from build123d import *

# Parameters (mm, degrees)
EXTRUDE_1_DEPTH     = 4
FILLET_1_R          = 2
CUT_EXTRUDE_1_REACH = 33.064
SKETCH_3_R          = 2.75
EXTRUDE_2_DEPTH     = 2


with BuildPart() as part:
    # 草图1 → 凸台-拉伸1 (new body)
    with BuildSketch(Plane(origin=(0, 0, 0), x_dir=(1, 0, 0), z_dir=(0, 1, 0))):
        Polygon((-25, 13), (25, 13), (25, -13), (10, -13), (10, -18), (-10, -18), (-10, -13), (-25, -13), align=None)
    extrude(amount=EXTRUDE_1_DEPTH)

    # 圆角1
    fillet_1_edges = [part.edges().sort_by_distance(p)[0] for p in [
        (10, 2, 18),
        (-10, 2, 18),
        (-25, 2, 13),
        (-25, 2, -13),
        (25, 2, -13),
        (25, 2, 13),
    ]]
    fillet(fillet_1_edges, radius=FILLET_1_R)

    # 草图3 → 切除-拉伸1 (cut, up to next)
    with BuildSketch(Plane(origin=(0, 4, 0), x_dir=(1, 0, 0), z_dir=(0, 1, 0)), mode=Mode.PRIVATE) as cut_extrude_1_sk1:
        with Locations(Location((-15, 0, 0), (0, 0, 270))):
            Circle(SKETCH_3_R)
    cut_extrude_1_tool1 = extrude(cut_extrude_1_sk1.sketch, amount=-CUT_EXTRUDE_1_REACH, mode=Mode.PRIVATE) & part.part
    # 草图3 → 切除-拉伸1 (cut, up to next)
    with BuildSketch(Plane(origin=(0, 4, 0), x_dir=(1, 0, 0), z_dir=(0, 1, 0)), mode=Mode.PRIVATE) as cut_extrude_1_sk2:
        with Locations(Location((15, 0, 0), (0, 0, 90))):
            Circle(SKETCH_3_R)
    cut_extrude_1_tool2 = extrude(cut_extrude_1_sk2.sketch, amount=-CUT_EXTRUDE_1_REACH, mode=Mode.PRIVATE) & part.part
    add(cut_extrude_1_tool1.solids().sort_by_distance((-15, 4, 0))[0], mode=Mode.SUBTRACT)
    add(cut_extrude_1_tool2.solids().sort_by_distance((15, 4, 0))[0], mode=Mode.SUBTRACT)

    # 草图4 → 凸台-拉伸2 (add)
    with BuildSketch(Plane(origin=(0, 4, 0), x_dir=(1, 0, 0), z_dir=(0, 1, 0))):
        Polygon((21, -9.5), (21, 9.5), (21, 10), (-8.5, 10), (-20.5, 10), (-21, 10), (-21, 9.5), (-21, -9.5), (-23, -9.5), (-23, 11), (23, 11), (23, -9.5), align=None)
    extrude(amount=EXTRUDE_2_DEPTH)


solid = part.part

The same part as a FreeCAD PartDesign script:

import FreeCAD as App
import Part
import Sketcher

V = App.Vector
Q = App.Units.Quantity


def edges_at(feature, points):
    """Names of the edges that pass closest to the given points."""
    edges = feature.Shape.Edges
    near = lambda p: min(range(len(edges)), key=lambda i: edges[i].distToShape(Part.Vertex(*p))[0])
    return sorted({f"Edge{near(p) + 1}" for p in points})

doc = App.newDocument("Part")
body = doc.addObject("PartDesign::Body", "Body")

# Sketch on XZ plane
sketch1 = body.newObject("Sketcher::SketchObject", "Sketch")
sketch1.AttachmentSupport = (doc.getObject("XZ_Plane"), [""])
sketch1.MapMode = "FlatFace"
sketch1.addGeometry([
    Part.LineSegment(V(25, -13, 0), V(-25, -13, 0)),  # 0
    Part.LineSegment(V(-25, -13, 0), V(-25, 13, 0)),  # 1
    Part.LineSegment(V(-25, 13, 0), V(-10, 13, 0)),  # 2
    Part.LineSegment(V(-10, 13, 0), V(-10, 18, 0)),  # 3
    Part.LineSegment(V(-10, 18, 0), V(10, 18, 0)),  # 4
    Part.LineSegment(V(10, 18, 0), V(10, 13, 0)),  # 5
    Part.LineSegment(V(10, 13, 0), V(25, 13, 0)),  # 6
    Part.LineSegment(V(25, 13, 0), V(25, -13, 0)),  # 7
], False)
sketch1.addConstraint([
    Sketcher.Constraint("Coincident", 0, 2, 1, 1),
    Sketcher.Constraint("Coincident", 1, 2, 2, 1),
    Sketcher.Constraint("Coincident", 2, 2, 3, 1),
    Sketcher.Constraint("Coincident", 3, 2, 4, 1),
    Sketcher.Constraint("Coincident", 4, 2, 5, 1),
    Sketcher.Constraint("Coincident", 5, 2, 6, 1),
    Sketcher.Constraint("Coincident", 6, 2, 7, 1),
    Sketcher.Constraint("Coincident", 7, 2, 0, 1),
    Sketcher.Constraint("Horizontal", 0),
    Sketcher.Constraint("Vertical", 1),
    Sketcher.Constraint("Horizontal", 2),
    Sketcher.Constraint("Vertical", 3),
    Sketcher.Constraint("Horizontal", 4),
    Sketcher.Constraint("Vertical", 5),
    Sketcher.Constraint("Horizontal", 6),
    Sketcher.Constraint("Vertical", 7),
    Sketcher.Constraint("Symmetric", 0, 2, 6, 2, -1, 1),
    Sketcher.Constraint("Symmetric", 2, 2, 5, 2, -2),
    Sketcher.Constraint("DistanceX", 0, 2, 0, 1, Q("50 mm")),
    Sketcher.Constraint("DistanceX", 2, 1, 2, 2, Q("15 mm")),
    Sketcher.Constraint("DistanceY", 1, 1, 1, 2, Q("26 mm")),
    Sketcher.Constraint("DistanceY", 3, 1, 3, 2, Q("5 mm")),
])
pad1 = body.newObject("PartDesign::Pad", "Pad")
pad1.Profile = sketch1
pad1.Length = 4
pad1.Reversed = True
doc.recompute()

fillet = body.newObject("PartDesign::Fillet", "Fillet")
fillet.Base = (pad1, edges_at(pad1, [
    (10, 2, 18),
    (-10, 2, 18),
    (-25, 2, 13),
    (-25, 2, -13),
    (25, 2, -13),
    (25, 2, 13),
]))
fillet.Radius = 2

# Sketch on XZ plane
sketch2 = body.newObject("Sketcher::SketchObject", "Sketch001")
sketch2.AttachmentSupport = (doc.getObject("XZ_Plane"), [""])
sketch2.MapMode = "FlatFace"
sketch2.AttachmentOffset = App.Placement(V(0, 0, -4), App.Rotation())
sketch2.addGeometry(Part.Circle(V(-15, 0, 0), V(0, 0, 1), 2.8), False)
sketch2.addConstraint([
    Sketcher.Constraint("PointOnObject", 0, 3, -1),
    Sketcher.Constraint("Diameter", 0, Q("5.5 mm")),
    Sketcher.Constraint("DistanceX", 0, 3, -1, 1, Q("15 mm")),
])
pocket1 = body.newObject("PartDesign::Pocket", "Pocket")
pocket1.Profile = sketch2
pocket1.Type = "UpToFirst"
pocket1.Reversed = True

# Sketch on XZ plane
sketch3 = body.newObject("Sketcher::SketchObject", "Sketch002")
sketch3.AttachmentSupport = (doc.getObject("XZ_Plane"), [""])
sketch3.MapMode = "FlatFace"
sketch3.AttachmentOffset = App.Placement(V(0, 0, -4), App.Rotation())
sketch3.addGeometry(Part.Circle(V(15, 0, 0), V(0, 0, 1), 2.8), False)
sketch3.addConstraint([
    Sketcher.Constraint("PointOnObject", 0, 3, -1),
    Sketcher.Constraint("Diameter", 0, Q("5.5 mm")),
    Sketcher.Constraint("DistanceX", -1, 1, 0, 3, Q("15 mm")),
])
pocket2 = body.newObject("PartDesign::Pocket", "Pocket001")
pocket2.Profile = sketch3
pocket2.Type = "UpToFirst"
pocket2.Reversed = True

# Sketch on XZ plane
sketch4 = body.newObject("Sketcher::SketchObject", "Sketch003")
sketch4.AttachmentSupport = (doc.getObject("XZ_Plane"), [""])
sketch4.MapMode = "FlatFace"
sketch4.AttachmentOffset = App.Placement(V(0, 0, -4), App.Rotation())
sketch4.addGeometry([
    Part.LineSegment(V(21, -10, 0), V(21, 9.5, 0)),  # 0
    Part.LineSegment(V(21, 9.5, 0), V(23, 9.5, 0)),  # 1
    Part.LineSegment(V(23, 9.5, 0), V(23, -11, 0)),  # 2
    Part.LineSegment(V(23, -11, 0), V(-23, -11, 0)),  # 3
    Part.LineSegment(V(-23, -11, 0), V(-23, 9.5, 0)),  # 4
    Part.LineSegment(V(-23, 9.5, 0), V(-21, 9.5, 0)),  # 5
    Part.LineSegment(V(-21, 9.5, 0), V(-21, -10, 0)),  # 6
    Part.LineSegment(V(-21, -10, 0), V(21, -10, 0)),  # 7
], False)
sketch4.addConstraint([
    Sketcher.Constraint("Coincident", 0, 2, 1, 1),
    Sketcher.Constraint("Coincident", 1, 2, 2, 1),
    Sketcher.Constraint("Coincident", 2, 2, 3, 1),
    Sketcher.Constraint("Coincident", 3, 2, 4, 1),
    Sketcher.Constraint("Coincident", 4, 2, 5, 1),
    Sketcher.Constraint("Coincident", 5, 2, 6, 1),
    Sketcher.Constraint("Coincident", 6, 2, 7, 1),
    Sketcher.Constraint("Coincident", 7, 2, 0, 1),
    Sketcher.Constraint("Vertical", 0),
    Sketcher.Constraint("Horizontal", 1),
    Sketcher.Constraint("Vertical", 2),
    Sketcher.Constraint("Horizontal", 3),
    Sketcher.Constraint("Vertical", 4),
    Sketcher.Constraint("Horizontal", 5),
    Sketcher.Constraint("Vertical", 6),
    Sketcher.Constraint("Horizontal", 7),
    Sketcher.Constraint("Symmetric", 1, 2, 4, 2, -2),
    Sketcher.Constraint("Equal", 1, 5),
    Sketcher.Constraint("DistanceX", 1, 1, 1, 2, Q("2 mm")),
    Sketcher.Constraint("DistanceX", 3, 2, 3, 1, Q("46 mm")),
    Sketcher.Constraint("DistanceY", 0, 1, 0, 2, Q("19.5 mm")),
    Sketcher.Constraint("DistanceY", 2, 2, 2, 1, Q("20.5 mm")),
    Sketcher.Constraint("DistanceY", 2, 2, -1, 1, Q("11 mm")),
])
pad2 = body.newObject("PartDesign::Pad", "Pad001")
pad2.Profile = sketch4
pad2.Length = 2
pad2.Reversed = True

doc.recompute()
